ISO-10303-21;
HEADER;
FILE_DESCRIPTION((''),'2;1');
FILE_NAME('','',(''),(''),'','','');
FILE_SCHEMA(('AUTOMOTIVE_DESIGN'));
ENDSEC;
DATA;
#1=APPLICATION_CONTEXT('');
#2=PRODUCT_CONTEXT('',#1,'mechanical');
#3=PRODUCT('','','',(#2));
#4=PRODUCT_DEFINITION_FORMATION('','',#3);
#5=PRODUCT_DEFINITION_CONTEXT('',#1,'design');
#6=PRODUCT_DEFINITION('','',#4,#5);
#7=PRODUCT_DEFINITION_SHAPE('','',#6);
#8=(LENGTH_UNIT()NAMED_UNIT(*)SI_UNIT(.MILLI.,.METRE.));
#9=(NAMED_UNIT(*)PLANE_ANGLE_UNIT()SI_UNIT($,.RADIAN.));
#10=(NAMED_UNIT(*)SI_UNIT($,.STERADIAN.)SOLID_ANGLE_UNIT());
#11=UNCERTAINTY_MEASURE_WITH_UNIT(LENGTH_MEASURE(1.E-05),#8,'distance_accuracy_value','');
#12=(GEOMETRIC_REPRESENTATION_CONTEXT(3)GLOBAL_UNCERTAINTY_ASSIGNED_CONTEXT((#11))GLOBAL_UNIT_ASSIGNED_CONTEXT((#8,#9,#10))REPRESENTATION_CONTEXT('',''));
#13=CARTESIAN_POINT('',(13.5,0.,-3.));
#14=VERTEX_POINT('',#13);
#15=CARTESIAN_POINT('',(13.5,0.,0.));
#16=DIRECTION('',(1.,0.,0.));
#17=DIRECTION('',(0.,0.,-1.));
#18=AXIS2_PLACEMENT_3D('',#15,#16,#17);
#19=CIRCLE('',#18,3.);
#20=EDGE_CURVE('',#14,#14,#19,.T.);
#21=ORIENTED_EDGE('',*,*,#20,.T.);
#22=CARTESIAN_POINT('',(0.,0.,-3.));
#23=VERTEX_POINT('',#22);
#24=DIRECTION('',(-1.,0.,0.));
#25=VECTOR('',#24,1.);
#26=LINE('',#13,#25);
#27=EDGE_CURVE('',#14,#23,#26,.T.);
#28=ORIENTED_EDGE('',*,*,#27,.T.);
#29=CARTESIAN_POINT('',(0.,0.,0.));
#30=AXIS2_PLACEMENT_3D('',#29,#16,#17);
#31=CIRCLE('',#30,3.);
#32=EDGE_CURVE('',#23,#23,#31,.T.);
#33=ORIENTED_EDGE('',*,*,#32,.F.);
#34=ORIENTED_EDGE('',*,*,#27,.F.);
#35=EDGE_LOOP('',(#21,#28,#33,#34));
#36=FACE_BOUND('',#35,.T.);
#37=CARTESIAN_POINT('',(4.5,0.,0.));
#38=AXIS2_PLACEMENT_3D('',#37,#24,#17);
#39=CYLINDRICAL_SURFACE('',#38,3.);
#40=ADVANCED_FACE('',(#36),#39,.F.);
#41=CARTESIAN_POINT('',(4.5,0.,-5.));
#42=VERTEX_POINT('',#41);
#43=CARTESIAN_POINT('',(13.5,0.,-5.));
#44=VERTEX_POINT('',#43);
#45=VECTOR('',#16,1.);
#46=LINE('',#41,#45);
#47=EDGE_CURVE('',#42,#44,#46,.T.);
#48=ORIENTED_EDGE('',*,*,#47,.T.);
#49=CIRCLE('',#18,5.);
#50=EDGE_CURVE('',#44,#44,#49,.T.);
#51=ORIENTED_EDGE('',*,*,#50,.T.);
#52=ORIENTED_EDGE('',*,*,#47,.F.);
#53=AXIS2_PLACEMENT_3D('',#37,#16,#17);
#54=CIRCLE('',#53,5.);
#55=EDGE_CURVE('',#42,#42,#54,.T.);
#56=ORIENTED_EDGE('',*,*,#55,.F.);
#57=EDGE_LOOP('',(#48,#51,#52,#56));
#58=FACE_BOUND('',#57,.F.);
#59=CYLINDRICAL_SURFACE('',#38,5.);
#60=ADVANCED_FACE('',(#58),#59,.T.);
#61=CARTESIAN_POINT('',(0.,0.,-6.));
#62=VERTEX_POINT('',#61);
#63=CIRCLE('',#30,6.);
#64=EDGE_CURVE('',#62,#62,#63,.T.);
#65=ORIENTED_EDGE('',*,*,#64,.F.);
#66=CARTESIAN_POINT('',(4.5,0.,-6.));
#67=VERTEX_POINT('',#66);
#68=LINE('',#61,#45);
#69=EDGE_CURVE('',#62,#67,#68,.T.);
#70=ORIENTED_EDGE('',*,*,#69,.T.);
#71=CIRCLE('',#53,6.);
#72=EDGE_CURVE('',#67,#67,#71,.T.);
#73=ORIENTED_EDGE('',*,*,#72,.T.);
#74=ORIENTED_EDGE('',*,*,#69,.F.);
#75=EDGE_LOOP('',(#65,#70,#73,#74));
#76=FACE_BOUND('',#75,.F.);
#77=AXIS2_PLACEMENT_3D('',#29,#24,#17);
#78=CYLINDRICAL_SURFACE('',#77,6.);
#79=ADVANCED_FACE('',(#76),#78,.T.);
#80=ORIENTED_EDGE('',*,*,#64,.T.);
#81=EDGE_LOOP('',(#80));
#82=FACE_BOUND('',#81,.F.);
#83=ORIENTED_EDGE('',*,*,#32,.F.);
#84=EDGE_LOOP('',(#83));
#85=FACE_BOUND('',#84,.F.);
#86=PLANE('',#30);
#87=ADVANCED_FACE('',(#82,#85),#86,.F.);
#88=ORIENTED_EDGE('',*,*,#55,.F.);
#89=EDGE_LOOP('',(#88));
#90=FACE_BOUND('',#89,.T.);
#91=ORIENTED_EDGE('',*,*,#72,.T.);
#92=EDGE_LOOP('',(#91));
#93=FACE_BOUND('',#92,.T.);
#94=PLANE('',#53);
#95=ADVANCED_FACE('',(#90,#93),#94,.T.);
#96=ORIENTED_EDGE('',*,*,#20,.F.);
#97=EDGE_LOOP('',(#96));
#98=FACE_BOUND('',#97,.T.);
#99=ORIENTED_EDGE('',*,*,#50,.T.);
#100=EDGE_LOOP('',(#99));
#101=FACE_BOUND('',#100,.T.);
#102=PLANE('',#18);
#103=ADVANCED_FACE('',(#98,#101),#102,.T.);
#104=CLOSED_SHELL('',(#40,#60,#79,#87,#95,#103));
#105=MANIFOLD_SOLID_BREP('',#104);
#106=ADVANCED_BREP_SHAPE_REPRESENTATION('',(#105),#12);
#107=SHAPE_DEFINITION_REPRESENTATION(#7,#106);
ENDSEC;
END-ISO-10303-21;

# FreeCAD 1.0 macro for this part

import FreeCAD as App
import Part
import Sketcher
from FreeCAD import Vector

doc = App.newDocument("Part")
body = doc.addObject("PartDesign::Body", "Body")

sketch1 = body.newObject("Sketcher::SketchObject", "Sketch")
sketch1.AttachmentSupport = (doc.getObject("YZ_Plane"), [""])
sketch1.MapMode = "FlatFace"
sketch1.addGeometry(Part.Circle(Vector(0, 0, 0), Vector(0, 0, 1), 6), False)
sketch1.addGeometry(Part.Circle(Vector(0, 0, 0), Vector(0, 0, 1), 3), False)
sketch1.addConstraint(Sketcher.Constraint("Coincident", 0, 3, -1, 1))
sketch1.addConstraint(Sketcher.Constraint("Coincident", 1, 3, -1, 1))
sketch1.addConstraint(Sketcher.Constraint("Diameter", 0, 12.0))
sketch1.addConstraint(Sketcher.Constraint("Diameter", 1, 6.0))
pad1 = body.newObject("PartDesign::Pad", "Pad")
pad1.Profile = sketch1
pad1.Length = 4.5

sketch2 = body.newObject("Sketcher::SketchObject", "Sketch001")
sketch2.AttachmentSupport = (doc.getObject("YZ_Plane"), [""])
sketch2.MapMode = "FlatFace"
sketch2.AttachmentOffset = App.Placement(Vector(0, 0, 4.5), App.Rotation())
sketch2.addGeometry(Part.Circle(Vector(0, 0, 0), Vector(0, 0, 1), 5), False)
sketch2.addGeometry(Part.Circle(Vector(0, 0, 0), Vector(0, 0, 1), 3), False)
sketch2.addConstraint(Sketcher.Constraint("Coincident", 0, 3, -1, 1))
sketch2.addConstraint(Sketcher.Constraint("Coincident", 1, 3, -1, 1))
sketch2.addConstraint(Sketcher.Constraint("Diameter", 0, 10.0))
sketch2.addConstraint(Sketcher.Constraint("Diameter", 1, 6.0))
pad2 = body.newObject("PartDesign::Pad", "Pad001")
pad2.Profile = sketch2
pad2.Length = 9

doc.recompute()
